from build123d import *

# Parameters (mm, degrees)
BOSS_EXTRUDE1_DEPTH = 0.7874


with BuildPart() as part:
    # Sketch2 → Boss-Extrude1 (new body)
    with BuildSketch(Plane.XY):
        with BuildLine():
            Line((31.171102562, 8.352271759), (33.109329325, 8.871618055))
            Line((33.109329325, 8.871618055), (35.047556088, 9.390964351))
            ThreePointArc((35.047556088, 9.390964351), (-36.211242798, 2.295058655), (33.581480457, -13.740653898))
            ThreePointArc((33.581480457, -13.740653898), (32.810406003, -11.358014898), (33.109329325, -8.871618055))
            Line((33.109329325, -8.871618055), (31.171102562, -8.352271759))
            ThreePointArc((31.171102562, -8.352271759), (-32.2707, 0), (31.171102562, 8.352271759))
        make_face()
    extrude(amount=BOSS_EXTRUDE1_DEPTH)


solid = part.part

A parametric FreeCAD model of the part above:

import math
import FreeCAD as App
import Part
import Sketcher
Q = App.Units.Quantity

doc = App.newDocument("Part")
params = doc.addObject("Spreadsheet::Sheet", "Params")
for row, (alias, value) in enumerate([
    ("sketch1_length", "0.079 in"),
    ("pad1_length", "0.031 in"),
], start=1):
    params.set(f"A{row}", alias)
    params.set(f"B{row}", "=" + value)
    params.setAlias(f"B{row}", alias)

body = doc.addObject("PartDesign::Body", "Body")

sketch1 = doc.addObject("Sketcher::SketchObject", "Sketch")
body.addObject(sketch1)
sketch1.AttachmentSupport = (doc.XY_Plane, [""])
sketch1.MapMode = "FlatFace"
sketch1.addGeometry(Part.LineSegment(App.Vector(31.2, 8.4, 0), App.Vector(35, 9.4, 0)), False)
sketch1.addGeometry(Part.ArcOfCircle(Part.Circle(App.Vector(0, 0, 0), App.Vector(0, 0, 1), 36.3), math.radians(15), math.radians(338)), False)
sketch1.addGeometry(Part.ArcOfCircle(Part.Circle(App.Vector(38.6, -10.8, 0), App.Vector(0, 0, 1), 5.8), math.radians(161), math.radians(210)), False)
sketch1.addGeometry(Part.LineSegment(App.Vector(33.1, -8.9, 0), App.Vector(31.2, -8.4, 0)), False)
sketch1.addGeometry(Part.ArcOfCircle(Part.Circle(App.Vector(0, 0, 0), App.Vector(0, 0, 1), 32.3), math.radians(15), math.radians(345)), False)
sketch1.addConstraint(Sketcher.Constraint("Coincident", 0, 2, 1, 1))
sketch1.addConstraint(Sketcher.Constraint("Coincident", 1, 2, 2, 2))
sketch1.addConstraint(Sketcher.Constraint("Coincident", 2, 1, 3, 1))
sketch1.addConstraint(Sketcher.Constraint("Coincident", 3, 2, 4, 2))
sketch1.addConstraint(Sketcher.Constraint("Coincident", 4, 1, 0, 1))
sketch1.addConstraint(Sketcher.Constraint("Coincident", 1, 3, -1, 1))
sketch1.addConstraint(Sketcher.Constraint("Coincident", 4, 3, -1, 1))
sketch1.addConstraint(Sketcher.Constraint("Vertical", 3, 2, 4, 1))
sketch1.addConstraint(Sketcher.Constraint("Angle", 0, Q("15 deg")))
sketch1.addConstraint(Sketcher.Constraint("Angle", 3, Q("165 deg")))
sketch1.addConstraint(Sketcher.Constraint("Radius", 1, Q("1.4285 in")))
sketch1.addConstraint(Sketcher.Constraint("Radius", 4, Q("1.2705 in")))
sketch1.addConstraint(Sketcher.Constraint("Distance", 3, Q("0.079 in")))
sketch1.addConstraint(Sketcher.Constraint("Radius", 2, 5.833886))
sketch1.addConstraint(Sketcher.Constraint("DistanceX", 0, 2, 2, 3, 3.569499))
sketch1.addConstraint(Sketcher.Constraint("DistanceX", -1, 1, 1, 2, 33.58148))
sketch1.setExpression("Constraints[12]", "Params.sketch1_length")
pad1 = doc.addObject("PartDesign::Pad", "Pad")
body.addObject(pad1)
pad1.Profile = sketch1
pad1.setExpression("Length", "Params.pad1_length")

doc.recompute()
